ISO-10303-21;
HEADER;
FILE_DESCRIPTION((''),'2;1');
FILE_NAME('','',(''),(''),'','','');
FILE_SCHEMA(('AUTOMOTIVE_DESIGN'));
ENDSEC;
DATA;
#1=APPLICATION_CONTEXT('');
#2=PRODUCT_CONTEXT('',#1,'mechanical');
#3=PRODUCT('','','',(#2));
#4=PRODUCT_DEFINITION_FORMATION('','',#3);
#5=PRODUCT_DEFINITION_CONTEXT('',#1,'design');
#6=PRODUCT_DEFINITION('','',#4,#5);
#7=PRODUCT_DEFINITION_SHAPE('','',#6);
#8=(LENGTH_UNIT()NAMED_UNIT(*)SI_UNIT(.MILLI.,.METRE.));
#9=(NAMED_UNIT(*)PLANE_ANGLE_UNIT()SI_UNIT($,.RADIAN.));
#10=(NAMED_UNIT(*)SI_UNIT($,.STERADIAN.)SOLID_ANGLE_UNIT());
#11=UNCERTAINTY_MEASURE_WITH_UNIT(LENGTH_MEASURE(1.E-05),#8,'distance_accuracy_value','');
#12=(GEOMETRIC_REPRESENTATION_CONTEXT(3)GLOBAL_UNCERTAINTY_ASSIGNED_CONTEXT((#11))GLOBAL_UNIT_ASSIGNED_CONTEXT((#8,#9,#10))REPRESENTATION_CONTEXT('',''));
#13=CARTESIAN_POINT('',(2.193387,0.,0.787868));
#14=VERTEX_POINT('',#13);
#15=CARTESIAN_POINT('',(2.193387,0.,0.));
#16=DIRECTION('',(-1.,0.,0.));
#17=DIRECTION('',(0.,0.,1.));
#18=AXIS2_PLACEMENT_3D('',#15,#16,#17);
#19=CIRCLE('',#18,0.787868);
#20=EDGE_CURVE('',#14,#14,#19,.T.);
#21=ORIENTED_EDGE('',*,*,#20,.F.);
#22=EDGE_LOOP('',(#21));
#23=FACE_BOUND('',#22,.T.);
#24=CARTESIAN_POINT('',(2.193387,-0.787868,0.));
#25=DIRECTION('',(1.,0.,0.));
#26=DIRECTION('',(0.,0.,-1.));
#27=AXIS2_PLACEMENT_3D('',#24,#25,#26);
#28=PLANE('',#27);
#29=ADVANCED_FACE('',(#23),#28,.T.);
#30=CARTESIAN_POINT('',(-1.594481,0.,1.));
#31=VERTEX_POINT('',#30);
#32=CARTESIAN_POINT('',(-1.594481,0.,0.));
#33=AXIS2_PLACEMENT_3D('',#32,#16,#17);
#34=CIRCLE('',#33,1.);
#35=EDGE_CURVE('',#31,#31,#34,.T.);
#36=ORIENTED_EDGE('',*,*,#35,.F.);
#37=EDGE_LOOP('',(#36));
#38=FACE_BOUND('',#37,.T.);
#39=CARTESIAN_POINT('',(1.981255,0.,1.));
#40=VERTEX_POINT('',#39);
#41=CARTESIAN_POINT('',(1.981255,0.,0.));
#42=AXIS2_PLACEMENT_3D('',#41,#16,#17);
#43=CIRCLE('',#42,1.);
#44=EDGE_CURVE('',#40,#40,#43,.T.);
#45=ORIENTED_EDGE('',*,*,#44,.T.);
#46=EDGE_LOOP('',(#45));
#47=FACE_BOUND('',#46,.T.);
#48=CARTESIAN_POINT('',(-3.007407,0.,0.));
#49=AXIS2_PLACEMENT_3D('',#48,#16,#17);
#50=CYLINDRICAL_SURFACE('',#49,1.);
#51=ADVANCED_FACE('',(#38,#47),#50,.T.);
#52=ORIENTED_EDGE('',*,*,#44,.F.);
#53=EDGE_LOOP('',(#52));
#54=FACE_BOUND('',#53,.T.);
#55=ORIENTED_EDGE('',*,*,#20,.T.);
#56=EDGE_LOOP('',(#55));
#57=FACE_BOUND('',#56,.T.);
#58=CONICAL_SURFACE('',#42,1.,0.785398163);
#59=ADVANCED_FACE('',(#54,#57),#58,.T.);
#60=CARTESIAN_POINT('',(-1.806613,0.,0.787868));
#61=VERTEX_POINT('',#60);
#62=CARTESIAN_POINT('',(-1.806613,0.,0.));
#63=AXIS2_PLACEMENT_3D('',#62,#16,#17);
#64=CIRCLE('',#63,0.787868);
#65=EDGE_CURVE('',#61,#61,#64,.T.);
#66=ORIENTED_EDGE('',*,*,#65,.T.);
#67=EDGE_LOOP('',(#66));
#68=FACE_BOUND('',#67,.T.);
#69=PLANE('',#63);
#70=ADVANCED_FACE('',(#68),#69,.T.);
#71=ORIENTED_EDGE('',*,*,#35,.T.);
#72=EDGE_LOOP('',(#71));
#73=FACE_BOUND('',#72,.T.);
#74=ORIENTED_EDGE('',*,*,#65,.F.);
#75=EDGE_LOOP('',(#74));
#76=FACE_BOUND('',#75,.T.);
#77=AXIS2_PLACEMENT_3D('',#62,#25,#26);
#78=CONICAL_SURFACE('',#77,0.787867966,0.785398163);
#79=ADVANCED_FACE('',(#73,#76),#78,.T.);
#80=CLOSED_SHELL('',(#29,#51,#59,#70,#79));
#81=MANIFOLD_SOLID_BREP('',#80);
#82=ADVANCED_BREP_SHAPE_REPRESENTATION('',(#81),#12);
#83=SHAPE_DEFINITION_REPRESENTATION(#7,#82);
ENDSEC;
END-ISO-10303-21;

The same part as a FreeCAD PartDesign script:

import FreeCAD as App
import Part
import Sketcher

doc = App.newDocument("Part")
body = doc.addObject("PartDesign::Body", "Body")

# Sketch on XY plane
sketch1 = body.newObject("Sketcher::SketchObject", "Sketch")
sketch1.AttachmentSupport = (doc.getObject("XY_Plane"), [""])
sketch1.MapMode = "FlatFace"
sketch1.addGeometry([
    Part.LineSegment(App.Vector(-1.81, 0, 0), App.Vector(-1.81, -0.79, 0)),  # 0
    Part.LineSegment(App.Vector(-1.81, -0.79, 0), App.Vector(-1.59, -1, 0)),  # 1
    Part.LineSegment(App.Vector(-1.59, -1, 0), App.Vector(1.98, -1, 0)),  # 2
    Part.LineSegment(App.Vector(1.98, -1, 0), App.Vector(2.19, -0.79, 0)),  # 3
    Part.LineSegment(App.Vector(2.19, -0.79, 0), App.Vector(2.19, 0, 0)),  # 4
    Part.LineSegment(App.Vector(2.19, 0, 0), App.Vector(-1.81, 0, 0)),  # 5
], False)
sketch1.addConstraint([
    Sketcher.Constraint("Coincident", 0, 2, 1, 1),
    Sketcher.Constraint("Coincident", 1, 2, 2, 1),
    Sketcher.Constraint("Coincident", 2, 2, 3, 1),
    Sketcher.Constraint("Coincident", 3, 2, 4, 1),
    Sketcher.Constraint("Coincident", 4, 2, 5, 1),
    Sketcher.Constraint("Coincident", 5, 2, 0, 1),
    Sketcher.Constraint("Vertical", 0),
    Sketcher.Constraint("Horizontal", 2),
    Sketcher.Constraint("Vertical", 4),
    Sketcher.Constraint("Horizontal", 5),
    Sketcher.Constraint("PointOnObject", 4, 2, -1),
    Sketcher.Constraint("Perpendicular", 1, 3),
    Sketcher.Constraint("Horizontal", 0, 2, 3, 2),
    Sketcher.Constraint("Equal", 1, 3),
    Sketcher.Constraint("DistanceX", 5, 2, 5, 1, 4.0),
    Sketcher.Constraint("DistanceY", 1, 2, -1, 1, 1.0),
    Sketcher.Constraint("Distance", 1, 0.3),
    Sketcher.Constraint("DistanceX", 1, 2, -1, 1, 1.594481),
])
revolution = body.newObject("PartDesign::Revolution", "Revolution")
revolution.Profile = sketch1
revolution.ReferenceAxis = (sketch1, ["H_Axis"])
revolution.Angle = 360

doc.recompute()
